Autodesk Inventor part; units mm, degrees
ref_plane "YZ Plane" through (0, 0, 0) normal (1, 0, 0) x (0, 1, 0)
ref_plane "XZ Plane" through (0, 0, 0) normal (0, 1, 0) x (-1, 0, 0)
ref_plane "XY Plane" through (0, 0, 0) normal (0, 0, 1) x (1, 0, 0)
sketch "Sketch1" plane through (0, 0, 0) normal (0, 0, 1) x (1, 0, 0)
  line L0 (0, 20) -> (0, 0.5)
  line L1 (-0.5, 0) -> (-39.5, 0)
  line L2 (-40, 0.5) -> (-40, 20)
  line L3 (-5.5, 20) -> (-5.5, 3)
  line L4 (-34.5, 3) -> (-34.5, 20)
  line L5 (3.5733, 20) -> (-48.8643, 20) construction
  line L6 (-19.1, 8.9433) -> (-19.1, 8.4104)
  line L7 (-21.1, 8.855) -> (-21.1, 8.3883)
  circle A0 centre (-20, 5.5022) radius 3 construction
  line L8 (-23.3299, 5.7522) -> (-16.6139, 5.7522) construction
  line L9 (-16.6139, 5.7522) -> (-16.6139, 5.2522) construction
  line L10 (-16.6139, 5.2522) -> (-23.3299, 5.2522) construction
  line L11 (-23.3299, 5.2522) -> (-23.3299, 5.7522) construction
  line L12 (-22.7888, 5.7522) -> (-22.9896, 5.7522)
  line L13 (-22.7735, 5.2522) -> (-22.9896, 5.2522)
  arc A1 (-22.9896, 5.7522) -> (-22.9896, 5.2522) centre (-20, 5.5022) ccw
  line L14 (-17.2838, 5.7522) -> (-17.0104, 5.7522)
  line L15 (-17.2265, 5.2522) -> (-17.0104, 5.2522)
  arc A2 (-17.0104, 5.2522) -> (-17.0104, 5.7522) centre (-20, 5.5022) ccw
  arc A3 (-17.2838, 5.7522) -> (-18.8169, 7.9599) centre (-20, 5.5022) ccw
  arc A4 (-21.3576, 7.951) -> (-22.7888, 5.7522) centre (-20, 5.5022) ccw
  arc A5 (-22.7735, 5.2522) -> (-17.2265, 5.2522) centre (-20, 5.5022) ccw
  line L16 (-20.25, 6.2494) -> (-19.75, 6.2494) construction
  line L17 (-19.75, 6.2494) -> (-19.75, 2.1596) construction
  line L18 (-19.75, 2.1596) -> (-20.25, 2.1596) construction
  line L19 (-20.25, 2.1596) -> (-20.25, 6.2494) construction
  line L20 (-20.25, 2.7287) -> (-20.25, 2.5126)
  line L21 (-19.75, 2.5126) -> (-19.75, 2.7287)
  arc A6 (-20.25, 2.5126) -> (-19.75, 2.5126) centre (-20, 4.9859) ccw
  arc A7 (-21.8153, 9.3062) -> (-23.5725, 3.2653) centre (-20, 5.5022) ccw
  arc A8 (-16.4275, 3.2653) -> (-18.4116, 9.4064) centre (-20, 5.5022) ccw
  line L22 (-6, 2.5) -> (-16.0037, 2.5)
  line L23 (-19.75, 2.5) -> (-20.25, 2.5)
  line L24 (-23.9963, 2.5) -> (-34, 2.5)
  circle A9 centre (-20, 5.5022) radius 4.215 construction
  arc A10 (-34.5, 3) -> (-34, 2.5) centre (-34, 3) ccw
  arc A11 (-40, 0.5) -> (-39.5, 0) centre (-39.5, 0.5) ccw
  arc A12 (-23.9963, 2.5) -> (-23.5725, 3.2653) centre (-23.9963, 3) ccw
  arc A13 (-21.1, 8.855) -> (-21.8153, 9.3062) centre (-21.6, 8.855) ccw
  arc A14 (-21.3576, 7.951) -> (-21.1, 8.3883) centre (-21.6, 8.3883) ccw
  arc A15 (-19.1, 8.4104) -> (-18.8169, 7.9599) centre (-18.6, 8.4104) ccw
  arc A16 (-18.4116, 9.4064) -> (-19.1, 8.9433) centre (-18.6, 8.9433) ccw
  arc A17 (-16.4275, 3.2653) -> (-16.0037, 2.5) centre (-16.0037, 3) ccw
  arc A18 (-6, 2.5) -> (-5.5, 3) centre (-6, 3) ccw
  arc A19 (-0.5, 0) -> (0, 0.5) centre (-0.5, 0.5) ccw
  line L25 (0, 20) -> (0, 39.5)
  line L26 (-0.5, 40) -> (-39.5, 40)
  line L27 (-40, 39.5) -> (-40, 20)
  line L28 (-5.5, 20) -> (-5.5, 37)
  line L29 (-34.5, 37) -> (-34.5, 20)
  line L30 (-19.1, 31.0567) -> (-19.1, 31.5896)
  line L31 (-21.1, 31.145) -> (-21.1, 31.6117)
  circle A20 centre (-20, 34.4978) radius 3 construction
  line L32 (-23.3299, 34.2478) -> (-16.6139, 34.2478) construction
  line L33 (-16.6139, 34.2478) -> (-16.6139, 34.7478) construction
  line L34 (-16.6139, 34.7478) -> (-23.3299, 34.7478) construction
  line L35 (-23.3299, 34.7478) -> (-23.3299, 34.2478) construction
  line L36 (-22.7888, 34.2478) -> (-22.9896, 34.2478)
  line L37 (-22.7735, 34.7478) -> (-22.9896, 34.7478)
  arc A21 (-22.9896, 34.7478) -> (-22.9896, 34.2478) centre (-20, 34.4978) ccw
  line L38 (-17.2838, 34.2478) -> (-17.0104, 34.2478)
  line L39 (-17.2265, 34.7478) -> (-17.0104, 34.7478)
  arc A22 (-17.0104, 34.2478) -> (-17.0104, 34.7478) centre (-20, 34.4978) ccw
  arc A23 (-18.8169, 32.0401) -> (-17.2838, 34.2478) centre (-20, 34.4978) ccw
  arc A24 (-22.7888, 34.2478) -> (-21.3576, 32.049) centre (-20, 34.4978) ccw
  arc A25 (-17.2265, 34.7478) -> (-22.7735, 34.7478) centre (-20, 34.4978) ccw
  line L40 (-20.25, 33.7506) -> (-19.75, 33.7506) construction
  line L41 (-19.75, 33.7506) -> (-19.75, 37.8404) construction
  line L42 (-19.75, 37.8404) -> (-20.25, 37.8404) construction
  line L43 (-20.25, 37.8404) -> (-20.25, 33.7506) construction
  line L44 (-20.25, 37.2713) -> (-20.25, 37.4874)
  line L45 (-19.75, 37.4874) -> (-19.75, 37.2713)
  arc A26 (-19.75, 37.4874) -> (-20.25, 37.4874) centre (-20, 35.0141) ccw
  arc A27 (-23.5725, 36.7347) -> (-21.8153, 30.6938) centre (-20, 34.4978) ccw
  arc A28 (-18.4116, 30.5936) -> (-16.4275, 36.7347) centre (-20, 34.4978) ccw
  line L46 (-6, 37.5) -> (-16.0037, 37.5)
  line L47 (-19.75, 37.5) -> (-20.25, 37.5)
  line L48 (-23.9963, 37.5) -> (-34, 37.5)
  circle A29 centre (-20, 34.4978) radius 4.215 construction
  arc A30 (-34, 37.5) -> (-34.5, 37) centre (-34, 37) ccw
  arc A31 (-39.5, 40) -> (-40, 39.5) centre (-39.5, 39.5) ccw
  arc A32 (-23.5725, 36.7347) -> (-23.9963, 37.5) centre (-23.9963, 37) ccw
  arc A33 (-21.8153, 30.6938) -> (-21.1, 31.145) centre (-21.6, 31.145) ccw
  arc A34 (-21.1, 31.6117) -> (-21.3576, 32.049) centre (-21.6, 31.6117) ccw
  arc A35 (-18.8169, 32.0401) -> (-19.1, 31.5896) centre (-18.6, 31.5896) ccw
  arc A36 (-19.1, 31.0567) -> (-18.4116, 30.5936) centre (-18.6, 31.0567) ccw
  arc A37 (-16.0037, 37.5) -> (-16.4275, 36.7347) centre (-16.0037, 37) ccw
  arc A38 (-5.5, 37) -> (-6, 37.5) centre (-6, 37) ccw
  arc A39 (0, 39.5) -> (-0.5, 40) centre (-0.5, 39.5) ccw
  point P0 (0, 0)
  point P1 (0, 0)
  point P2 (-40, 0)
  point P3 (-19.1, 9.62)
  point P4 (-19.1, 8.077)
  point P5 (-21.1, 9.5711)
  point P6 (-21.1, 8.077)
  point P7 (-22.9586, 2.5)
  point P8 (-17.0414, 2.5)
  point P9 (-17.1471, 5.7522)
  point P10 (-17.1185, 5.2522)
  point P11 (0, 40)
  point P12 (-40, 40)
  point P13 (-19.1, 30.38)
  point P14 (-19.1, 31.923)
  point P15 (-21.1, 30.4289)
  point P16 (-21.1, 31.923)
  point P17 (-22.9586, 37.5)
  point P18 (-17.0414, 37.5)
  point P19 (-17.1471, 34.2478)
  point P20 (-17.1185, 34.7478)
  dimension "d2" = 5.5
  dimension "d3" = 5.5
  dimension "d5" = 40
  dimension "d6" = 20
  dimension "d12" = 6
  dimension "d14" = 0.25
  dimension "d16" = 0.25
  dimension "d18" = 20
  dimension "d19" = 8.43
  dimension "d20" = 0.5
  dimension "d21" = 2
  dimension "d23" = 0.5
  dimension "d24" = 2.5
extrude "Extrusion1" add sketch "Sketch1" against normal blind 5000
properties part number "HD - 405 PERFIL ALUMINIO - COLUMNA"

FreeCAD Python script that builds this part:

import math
import FreeCAD as App
import Part
import Sketcher

V = App.Vector
Q = App.Units.Quantity

doc = App.newDocument("Part")
params = doc.addObject("Spreadsheet::Sheet", "Params")
for row, (alias, value) in enumerate([
    ("sketch1_radius", "3 mm"),
    ("sketch1_radius2", "0.5 mm"),
    ("sketch1_radius3", "2.8 mm"),
    ("sketch1_height", "34 mm"),
    ("pad1_length", "5000 mm"),
], start=1):
    params.set(f"A{row}", alias)
    params.set(f"B{row}", "=" + value)
    params.setAlias(f"B{row}", alias)

body = doc.addObject("PartDesign::Body", "Body")

# Sketch on XY plane
sketch1 = body.newObject("Sketcher::SketchObject", "Sketch")
sketch1.AttachmentSupport = (doc.getObject("XY_Plane"), [""])
sketch1.MapMode = "FlatFace"
sketch1.addGeometry([
    Part.LineSegment(V(0, 0.5, 0), V(0, 39.5, 0)),  # 0
    Part.ArcOfCircle(Part.Circle(V(-0.5, 39.5, 0), V(0, 0, 1), 0.5), math.radians(0), math.radians(90)),  # 1
    Part.LineSegment(V(-0.5, 40, 0), V(-39.5, 40, 0)),  # 2
    Part.ArcOfCircle(Part.Circle(V(-39.5, 39.5, 0), V(0, 0, 1), 0.5), math.radians(90), math.radians(180)),  # 3
    Part.LineSegment(V(-40, 39.5, 0), V(-40, 0.5, 0)),  # 4
    Part.ArcOfCircle(Part.Circle(V(-39.5, 0.5, 0), V(0, 0, 1), 0.5), math.radians(180), math.radians(270)),  # 5
    Part.LineSegment(V(-39.5, 0, 0), V(-0.5, 0, 0)),  # 6
    Part.ArcOfCircle(Part.Circle(V(-0.5, 0.5, 0), V(0, 0, 1), 0.5), math.radians(-90), math.radians(0)),  # 7
    Part.LineSegment(V(-5.5, 37, 0), V(-5.5, 3, 0)),  # 8
    Part.ArcOfCircle(Part.Circle(V(-6, 3, 0), V(0, 0, 1), 0.5), math.radians(-90), math.radians(0)),  # 9
    Part.LineSegment(V(-6, 2.5, 0), V(-16.0037, 2.5, 0)),  # 10
    Part.ArcOfCircle(Part.Circle(V(-16.0037, 3, 0), V(0, 0, 1), 0.499991), math.radians(147.953317), math.radians(270)),  # 11
    Part.ArcOfCircle(Part.Circle(V(-20, 5.5022, 0), V(0, 0, 1), 4.214941), math.radians(-32.0525), math.radians(67.86135)),  # 12
    Part.ArcOfCircle(Part.Circle(V(-18.6, 8.9433, 0), V(0, 0, 1), 0.499956), math.radians(67.862349), math.radians(180)),  # 13
    Part.LineSegment(V(-19.1, 8.9433, 0), V(-19.1, 8.4104, 0)),  # 14
    Part.ArcOfCircle(Part.Circle(V(-18.6, 8.4104, 0), V(0, 0, 1), 0.5), math.radians(180), math.radians(244.290811)),  # 15
    Part.ArcOfCircle(Part.Circle(V(-20, 5.5022, 0), V(0, 0, 1), 2.727681), math.radians(5.258707), math.radians(64.294532)),  # 16
    Part.LineSegment(V(-17.2838, 5.7522, 0), V(-17.0104, 5.7522, 0)),  # 17
    Part.ArcOfCircle(Part.Circle(V(-20, 5.5022, 0), V(0, 0, 1), 3.000035), math.radians(-4.780136), math.radians(4.780136)),  # 18
    Part.LineSegment(V(-17.0104, 5.2522, 0), V(-17.2265, 5.2522, 0)),  # 19
    Part.ArcOfCircle(Part.Circle(V(-20, 5.5022, 0), V(0, 0, 1), 2.784745), math.radians(-84.849346), math.radians(-5.150654)),  # 20
    Part.LineSegment(V(-19.75, 2.7287, 0), V(-19.75, 2.5126, 0)),  # 21
    Part.ArcOfCircle(Part.Circle(V(-20, 4.9859, 0), V(0, 0, 1), 2.485903), math.radians(-95.771827), math.radians(-84.228173)),  # 22
    Part.LineSegment(V(-20.25, 2.5126, 0), V(-20.25, 2.7287, 0)),  # 23
    Part.ArcOfCircle(Part.Circle(V(-20, 5.5022, 0), V(0, 0, 1), 2.784745), math.radians(-174.849346), math.radians(-95.150654)),  # 24
    Part.LineSegment(V(-22.7735, 5.2522, 0), V(-22.9896, 5.2522, 0)),  # 25
    Part.ArcOfCircle(Part.Circle(V(-20, 5.5022, 0), V(0, 0, 1), 3.000035), math.radians(175.219864), math.radians(184.780136)),  # 26
    Part.LineSegment(V(-22.9896, 5.7522, 0), V(-22.7888, 5.7522, 0)),  # 27
    Part.ArcOfCircle(Part.Circle(V(-20, 5.5022, 0), V(0, 0, 1), 2.799946), math.radians(119.003723), math.radians(174.877453)),  # 28
    Part.ArcOfCircle(Part.Circle(V(-21.6, 8.3883, 0), V(0, 0, 1), 0.499989), math.radians(-60.999935), math.radians(0)),  # 29
    Part.LineSegment(V(-21.1, 8.3883, 0), V(-21.1, 8.855, 0)),  # 30
    Part.ArcOfCircle(Part.Circle(V(-21.6, 8.855, 0), V(0, 0, 1), 0.5), math.radians(0), math.radians(115.509169)),  # 31
    Part.ArcOfCircle(Part.Circle(V(-20, 5.5022, 0), V(0, 0, 1), 4.21503), math.radians(115.510859), math.radians(212.0525)),  # 32
    Part.ArcOfCircle(Part.Circle(V(-23.9963, 3, 0), V(0, 0, 1), 0.5), math.radians(-90), math.radians(32.046683)),  # 33
    Part.LineSegment(V(-23.9963, 2.5, 0), V(-34, 2.5, 0)),  # 34
    Part.ArcOfCircle(Part.Circle(V(-34, 3, 0), V(0, 0, 1), 0.5), math.radians(180), math.radians(270)),  # 35
    Part.LineSegment(V(-34.5, 3, 0), V(-34.5, 37, 0)),  # 36
    Part.ArcOfCircle(Part.Circle(V(-34, 37, 0), V(0, 0, 1), 0.5), math.radians(90), math.radians(180)),  # 37
    Part.LineSegment(V(-34, 37.5, 0), V(-23.9963, 37.5, 0)),  # 38
    Part.ArcOfCircle(Part.Circle(V(-23.9963, 37, 0), V(0, 0, 1), 0.499991), math.radians(-32.046683), math.radians(90)),  # 39
    Part.ArcOfCircle(Part.Circle(V(-20, 34.4978, 0), V(0, 0, 1), 4.214949), math.radians(147.9475), math.radians(244.489141)),  # 40
    Part.ArcOfCircle(Part.Circle(V(-21.6, 31.145, 0), V(0, 0, 1), 0.499936), math.radians(-115.509169), math.radians(0)),  # 41
    Part.LineSegment(V(-21.1, 31.145, 0), V(-21.1, 31.6117, 0)),  # 42
    Part.ArcOfCircle(Part.Circle(V(-21.6, 31.6117, 0), V(0, 0, 1), 0.5), math.radians(0), math.radians(60.999935)),  # 43
    Part.ArcOfCircle(Part.Circle(V(-20, 34.4978, 0), V(0, 0, 1), 2.799983), math.radians(-174.877453), math.radians(-119.003723)),  # 44
    Part.LineSegment(V(-22.7888, 34.2478, 0), V(-22.9896, 34.2478, 0)),  # 45
    Part.ArcOfCircle(Part.Circle(V(-20, 34.4978, 0), V(0, 0, 1), 3.000035), math.radians(175.219864), math.radians(184.780136)),  # 46
    Part.LineSegment(V(-22.9896, 34.7478, 0), V(-22.7735, 34.7478, 0)),  # 47
    Part.ArcOfCircle(Part.Circle(V(-20, 34.4978, 0), V(0, 0, 1), 2.784745), math.radians(95.150654), math.radians(174.849346)),  # 48
    Part.LineSegment(V(-20.25, 37.2713, 0), V(-20.25, 37.4874, 0)),  # 49
    Part.ArcOfCircle(Part.Circle(V(-20, 35.0141, 0), V(0, 0, 1), 2.485903), math.radians(84.228173), math.radians(95.771827)),  # 50
    Part.LineSegment(V(-19.75, 37.4874, 0), V(-19.75, 37.2713, 0)),  # 51
    Part.ArcOfCircle(Part.Circle(V(-20, 34.4978, 0), V(0, 0, 1), 2.784745), math.radians(5.150654), math.radians(84.849346)),  # 52
    Part.LineSegment(V(-17.2265, 34.7478, 0), V(-17.0104, 34.7478, 0)),  # 53
    Part.ArcOfCircle(Part.Circle(V(-20, 34.4978, 0), V(0, 0, 1), 3.000035), math.radians(-4.780136), math.radians(4.780136)),  # 54
    Part.LineSegment(V(-17.0104, 34.2478, 0), V(-17.2838, 34.2478, 0)),  # 55
    Part.ArcOfCircle(Part.Circle(V(-20, 34.4978, 0), V(0, 0, 1), 2.727639), math.radians(-64.294532), math.radians(-5.258707)),  # 56
    Part.ArcOfCircle(Part.Circle(V(-18.6, 31.5896, 0), V(0, 0, 1), 0.499996), math.radians(115.709189), math.radians(180)),  # 57
    Part.LineSegment(V(-19.1, 31.5896, 0), V(-19.1, 31.0567, 0)),  # 58
    Part.ArcOfCircle(Part.Circle(V(-18.6, 31.0567, 0), V(0, 0, 1), 0.5), math.radians(180), math.radians(292.137651)),  # 59
    Part.ArcOfCircle(Part.Circle(V(-20, 34.4978, 0), V(0, 0, 1), 4.21503), math.radians(-67.86135), math.radians(32.0525)),  # 60
    Part.ArcOfCircle(Part.Circle(V(-16.0037, 37, 0), V(0, 0, 1), 0.5), math.radians(90), math.radians(212.046683)),  # 61
    Part.LineSegment(V(-16.0037, 37.5, 0), V(-6, 37.5, 0)),  # 62
    Part.ArcOfCircle(Part.Circle(V(-6, 37, 0), V(0, 0, 1), 0.5), math.radians(0), math.radians(90)),  # 63
], False)
sketch1.addConstraint([
    Sketcher.Constraint("Tangent", 0, 2, 1, 1),
    Sketcher.Constraint("Tangent", 1, 2, 2, 1),
    Sketcher.Constraint("Tangent", 2, 2, 3, 1),
    Sketcher.Constraint("Tangent", 3, 2, 4, 1),
    Sketcher.Constraint("Tangent", 4, 2, 5, 1),
    Sketcher.Constraint("Tangent", 5, 2, 6, 1),
    Sketcher.Constraint("Tangent", 6, 2, 7, 1),
    Sketcher.Constraint("Tangent", 7, 2, 0, 1),
    Sketcher.Constraint("Tangent", 8, 2, 9, 2),
    Sketcher.Constraint("Tangent", 9, 1, 10, 1),
    Sketcher.Constraint("Tangent", 10, 2, 11, 2),
    Sketcher.Constraint("Tangent", 11, 1, 12, 1),
    Sketcher.Constraint("Tangent", 12, 2, 13, 1),
    Sketcher.Constraint("Tangent", 13, 2, 14, 1),
    Sketcher.Constraint("Tangent", 14, 2, 15, 1),
    Sketcher.Constraint("Tangent", 15, 2, 16, 2),
    Sketcher.Constraint("Coincident", 16, 1, 17, 1),
    Sketcher.Constraint("Coincident", 17, 2, 18, 2),
    Sketcher.Constraint("Coincident", 18, 1, 19, 1),
    Sketcher.Constraint("Coincident", 19, 2, 20, 2),
    Sketcher.Constraint("Coincident", 20, 1, 21, 1),
    Sketcher.Constraint("Coincident", 21, 2, 22, 2),
    Sketcher.Constraint("Coincident", 22, 1, 23, 1),
    Sketcher.Constraint("Coincident", 23, 2, 24, 2),
    Sketcher.Constraint("Coincident", 24, 1, 25, 1),
    Sketcher.Constraint("Coincident", 25, 2, 26, 2),
    Sketcher.Constraint("Coincident", 26, 1, 27, 1),
    Sketcher.Constraint("Coincident", 27, 2, 28, 2),
    Sketcher.Constraint("Tangent", 28, 1, 29, 1),
    Sketcher.Constraint("Tangent", 29, 2, 30, 1),
    Sketcher.Constraint("Tangent", 30, 2, 31, 1),
    Sketcher.Constraint("Tangent", 31, 2, 32, 1),
    Sketcher.Constraint("Tangent", 32, 2, 33, 2),
    Sketcher.Constraint("Tangent", 33, 1, 34, 1),
    Sketcher.Constraint("Tangent", 34, 2, 35, 2),
    Sketcher.Constraint("Tangent", 35, 1, 36, 1),
    Sketcher.Constraint("Tangent", 36, 2, 37, 2),
    Sketcher.Constraint("Tangent", 37, 1, 38, 1),
    Sketcher.Constraint("Tangent", 38, 2, 39, 2),
    Sketcher.Constraint("Tangent", 39, 1, 40, 1),
    Sketcher.Constraint("Tangent", 40, 2, 41, 1),
    Sketcher.Constraint("Tangent", 41, 2, 42, 1),
    Sketcher.Constraint("Tangent", 42, 2, 43, 1),
    Sketcher.Constraint("Tangent", 43, 2, 44, 2),
    Sketcher.Constraint("Coincident", 44, 1, 45, 1),
    Sketcher.Constraint("Coincident", 45, 2, 46, 2),
    Sketcher.Constraint("Coincident", 46, 1, 47, 1),
    Sketcher.Constraint("Coincident", 47, 2, 48, 2),
    Sketcher.Constraint("Coincident", 48, 1, 49, 1),
    Sketcher.Constraint("Coincident", 49, 2, 50, 2),
    Sketcher.Constraint("Coincident", 50, 1, 51, 1),
    Sketcher.Constraint("Coincident", 51, 2, 52, 2),
    Sketcher.Constraint("Coincident", 52, 1, 53, 1),
    Sketcher.Constraint("Coincident", 53, 2, 54, 2),
    Sketcher.Constraint("Coincident", 54, 1, 55, 1),
    Sketcher.Constraint("Coincident", 55, 2, 56, 2),
    Sketcher.Constraint("Tangent", 56, 1, 57, 1),
    Sketcher.Constraint("Tangent", 57, 2, 58, 1),
    Sketcher.Constraint("Tangent", 58, 2, 59, 1),
    Sketcher.Constraint("Tangent", 59, 2, 60, 1),
    Sketcher.Constraint("Tangent", 60, 2, 61, 2),
    Sketcher.Constraint("Tangent", 61, 1, 62, 1),
    Sketcher.Constraint("Tangent", 62, 2, 63, 2),
    Sketcher.Constraint("Tangent", 63, 1, 8, 1),
    Sketcher.Constraint("Vertical", 0),
    Sketcher.Constraint("Horizontal", 2),
    Sketcher.Constraint("Vertical", 4),
    Sketcher.Constraint("Horizontal", 6),
    Sketcher.Constraint("Vertical", 8),
    Sketcher.Constraint("Horizontal", 10),
    Sketcher.Constraint("Vertical", 14),
    Sketcher.Constraint("Horizontal", 17),
    Sketcher.Constraint("Horizontal", 19),
    Sketcher.Constraint("Vertical", 21),
    Sketcher.Constraint("Vertical", 23),
    Sketcher.Constraint("Horizontal", 25),
    Sketcher.Constraint("Horizontal", 27),
    Sketcher.Constraint("Vertical", 30),
    Sketcher.Constraint("Horizontal", 34),
    Sketcher.Constraint("Vertical", 36),
    Sketcher.Constraint("Horizontal", 38),
    Sketcher.Constraint("Vertical", 42),
    Sketcher.Constraint("Horizontal", 45),
    Sketcher.Constraint("Horizontal", 47),
    Sketcher.Constraint("Vertical", 49),
    Sketcher.Constraint("Vertical", 51),
    Sketcher.Constraint("Horizontal", 53),
    Sketcher.Constraint("Horizontal", 55),
    Sketcher.Constraint("Vertical", 58),
    Sketcher.Constraint("Horizontal", 62),
    Sketcher.Constraint("Coincident", 16, 3, 12, 3),
    Sketcher.Constraint("Coincident", 18, 3, 12, 3),
    Sketcher.Constraint("Coincident", 20, 3, 12, 3),
    Sketcher.Constraint("Coincident", 24, 3, 12, 3),
    Sketcher.Constraint("Coincident", 26, 3, 12, 3),
    Sketcher.Constraint("Coincident", 28, 3, 12, 3),
    Sketcher.Constraint("Coincident", 32, 3, 12, 3),
    Sketcher.Constraint("Coincident", 44, 3, 40, 3),
    Sketcher.Constraint("Coincident", 46, 3, 40, 3),
    Sketcher.Constraint("Coincident", 48, 3, 40, 3),
    Sketcher.Constraint("Coincident", 52, 3, 40, 3),
    Sketcher.Constraint("Coincident", 54, 3, 40, 3),
    Sketcher.Constraint("Coincident", 56, 3, 40, 3),
    Sketcher.Constraint("Coincident", 60, 3, 40, 3),
    Sketcher.Constraint("Equal", 1, 3),
    Sketcher.Constraint("Equal", 3, 5),
    Sketcher.Constraint("Equal", 5, 7),
    Sketcher.Constraint("Equal", 7, 9),
    Sketcher.Constraint("Equal", 9, 11),
    Sketcher.Constraint("Equal", 11, 13),
    Sketcher.Constraint("Equal", 13, 15),
    Sketcher.Constraint("Equal", 20, 24),
    Sketcher.Constraint("Equal", 18, 26),
    Sketcher.Constraint("Equal", 15, 29),
    Sketcher.Constraint("Equal", 29, 31),
    Sketcher.Constraint("Equal", 12, 32),
    Sketcher.Constraint("Equal", 31, 33),
    Sketcher.Constraint("Equal", 33, 35),
    Sketcher.Constraint("Equal", 35, 37),
    Sketcher.Constraint("Equal", 37, 39),
    Sketcher.Constraint("Equal", 32, 40),
    Sketcher.Constraint("Equal", 39, 41),
    Sketcher.Constraint("Equal", 41, 43),
    Sketcher.Constraint("Equal", 28, 44),
    Sketcher.Constraint("Equal", 26, 46),
    Sketcher.Constraint("Equal", 24, 48),
    Sketcher.Constraint("Equal", 22, 50),
    Sketcher.Constraint("Equal", 48, 52),
    Sketcher.Constraint("Equal", 46, 54),
    Sketcher.Constraint("Equal", 16, 56),
    Sketcher.Constraint("Equal", 43, 57),
    Sketcher.Constraint("Equal", 57, 59),
    Sketcher.Constraint("Equal", 40, 60),
    Sketcher.Constraint("Equal", 59, 61),
    Sketcher.Constraint("Equal", 61, 63),
    Sketcher.Constraint("PointOnObject", 0, 2, -2),
    Sketcher.Constraint("PointOnObject", 5, 2, -1),
    Sketcher.Constraint("Horizontal", 11, 3, 33, 3),
    Sketcher.Constraint("Horizontal", 39, 3, 61, 3),
    Sketcher.Constraint("Horizontal", 21, 2, 22, 1),
    Sketcher.Constraint("Horizontal", 20, 1, 23, 2),
    Sketcher.Constraint("Horizontal", 19, 2, 24, 1),
    Sketcher.Constraint("Horizontal", 17, 2, 26, 1),
    Sketcher.Constraint("Horizontal", 49, 2, 50, 1),
    Sketcher.Constraint("Horizontal", 48, 1, 51, 2),
    Sketcher.Constraint("Horizontal", 47, 2, 52, 1),
    Sketcher.Constraint("Horizontal", 45, 2, 54, 1),
    Sketcher.Constraint("Vertical", 33, 3, 39, 3),
    Sketcher.Constraint("Vertical", 32, 3, 40, 3),
    Sketcher.Constraint("Vertical", 31, 3, 41, 3),
    Sketcher.Constraint("Vertical", 15, 3, 57, 3),
    Sketcher.Constraint("Vertical", 17, 2, 18, 1),
    Sketcher.Constraint("Vertical", 27, 2, 44, 1),
    Sketcher.Constraint("Vertical", 45, 2, 46, 1),
    Sketcher.Constraint("Vertical", 23, 2, 48, 1),
    Sketcher.Constraint("Equal", 10, 34),
    Sketcher.Constraint("Equal", 6, 0),
    Sketcher.Constraint("Equal", 53, 21),
    Sketcher.Constraint("Equal", 23, 49),
    Sketcher.Constraint("Radius", 18, Q("3 mm")),
    Sketcher.Constraint("Radius", 1, Q("0.5 mm")),
    Sketcher.Constraint("DistanceX", 9, 3, -1, 1, Q("6 mm")),
    Sketcher.Constraint("DistanceX", 12, 3, -1, 1, Q("20 mm")),
    Sketcher.Constraint("DistanceY", -1, 1, 1, 2, Q("40 mm")),
    Sketcher.Constraint("Radius", 12, Q("4.215 mm")),
    Sketcher.Constraint("DistanceY", -1, 1, 9, 1, Q("2.5 mm")),
    Sketcher.Constraint("Radius", 28, Q("2.8 mm")),
    Sketcher.Constraint("DistanceY", 8, 2, 8, 1, Q("34 mm")),
    Sketcher.Constraint("Radius", 22, Q("2.486 mm")),
    Sketcher.Constraint("DistanceX", 13, 3, -1, 1, Q("18.6 mm")),
    Sketcher.Constraint("DistanceX", 29, 3, -1, 1, Q("21.6 mm")),
    Sketcher.Constraint("Radius", 16, Q("2.7277 mm")),
    Sketcher.Constraint("Radius", 20, Q("2.7847 mm")),
    Sketcher.Constraint("DistanceY", -1, 1, 15, 2, Q("7.96 mm")),
    Sketcher.Constraint("DistanceX", 20, 1, -1, 1, Q("19.75 mm")),
    Sketcher.Constraint("DistanceX", 16, 1, -1, 1, Q("17.2838 mm")),
])
sketch1.setExpression("Constraints[159]", "Params.sketch1_radius")
sketch1.setExpression("Constraints[160]", "Params.sketch1_radius2")
sketch1.setExpression("Constraints[166]", "Params.sketch1_radius3")
sketch1.setExpression("Constraints[167]", "Params.sketch1_height")
pad1 = body.newObject("PartDesign::Pad", "Pad")
pad1.Profile = sketch1
pad1.setExpression("Length", "Params.pad1_length")
pad1.Reversed = True

doc.recompute()
